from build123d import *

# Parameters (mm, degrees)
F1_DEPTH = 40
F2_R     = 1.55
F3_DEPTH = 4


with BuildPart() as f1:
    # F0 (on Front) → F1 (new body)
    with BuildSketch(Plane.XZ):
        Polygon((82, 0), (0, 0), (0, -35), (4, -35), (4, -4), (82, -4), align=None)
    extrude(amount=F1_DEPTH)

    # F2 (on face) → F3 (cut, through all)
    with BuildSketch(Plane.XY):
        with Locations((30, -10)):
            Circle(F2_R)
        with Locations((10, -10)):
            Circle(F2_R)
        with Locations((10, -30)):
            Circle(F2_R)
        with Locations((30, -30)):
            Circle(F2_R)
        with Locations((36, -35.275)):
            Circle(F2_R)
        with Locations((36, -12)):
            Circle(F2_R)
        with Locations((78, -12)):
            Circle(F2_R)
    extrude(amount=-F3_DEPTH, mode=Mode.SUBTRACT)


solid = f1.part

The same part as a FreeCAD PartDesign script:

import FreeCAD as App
import Part
import Sketcher
from FreeCAD import Vector


def add_polygon(sketch, points):
    """Adds a closed chain of lines whose ends are joined by coincident constraints."""
    first, n = sketch.GeometryCount, len(points)
    for a, b in zip(points, points[1:] + points[:1]):
        sketch.addGeometry(Part.LineSegment(App.Vector(*a, 0), App.Vector(*b, 0)), False)
    for i in range(n):
        sketch.addConstraint(Sketcher.Constraint("Coincident", first + i, 2, first + (i + 1) % n, 1))

doc = App.newDocument("Part")
body = doc.addObject("PartDesign::Body", "Body")

# Sketch on XZ plane
sketch1 = body.newObject("Sketcher::SketchObject", "Sketch")
sketch1.AttachmentSupport = (doc.getObject("XZ_Plane"), [""])
sketch1.MapMode = "FlatFace"
add_polygon(sketch1, [(82, 0), (0, 0), (0, -35), (4, -35), (4, -4), (82, -4)])  # lines 0-5
sketch1.addConstraint(Sketcher.Constraint("Horizontal", 0))
sketch1.addConstraint(Sketcher.Constraint("Vertical", 1))
sketch1.addConstraint(Sketcher.Constraint("Horizontal", 2))
sketch1.addConstraint(Sketcher.Constraint("Vertical", 3))
sketch1.addConstraint(Sketcher.Constraint("Horizontal", 4))
sketch1.addConstraint(Sketcher.Constraint("Vertical", 5))
sketch1.addConstraint(Sketcher.Constraint("Coincident", 0, 2, -1, 1))
sketch1.addConstraint(Sketcher.Constraint("Equal", 2, 5))
sketch1.addConstraint(Sketcher.Constraint("DistanceX", 0, 2, 0, 1, 82.0))
sketch1.addConstraint(Sketcher.Constraint("DistanceX", 2, 1, 2, 2, 4.0))
sketch1.addConstraint(Sketcher.Constraint("DistanceY", 1, 2, 1, 1, 35.0))
pad1 = body.newObject("PartDesign::Pad", "Pad")
pad1.Profile = sketch1
pad1.Length = 40

# Sketch on XY plane
sketch2 = body.newObject("Sketcher::SketchObject", "Sketch001")
sketch2.AttachmentSupport = (doc.getObject("XY_Plane"), [""])
sketch2.MapMode = "FlatFace"
sketch2.addGeometry(Part.Circle(Vector(30, -10, 0), Vector(0, 0, 1), 1.6), False)
sketch2.addGeometry(Part.Circle(Vector(10, -10, 0), Vector(0, 0, 1), 1.6), False)
sketch2.addGeometry(Part.Circle(Vector(10, -30, 0), Vector(0, 0, 1), 1.6), False)
sketch2.addGeometry(Part.Circle(Vector(30, -30, 0), Vector(0, 0, 1), 1.6), False)
sketch2.addGeometry(Part.Circle(Vector(36, -35.3, 0), Vector(0, 0, 1), 1.6), False)
sketch2.addGeometry(Part.Circle(Vector(36, -12, 0), Vector(0, 0, 1), 1.6), False)
sketch2.addGeometry(Part.Circle(Vector(78, -12, 0), Vector(0, 0, 1), 1.6), False)
sketch2.addConstraint(Sketcher.Constraint("Equal", 0, 1))
sketch2.addConstraint(Sketcher.Constraint("Equal", 1, 2))
sketch2.addConstraint(Sketcher.Constraint("Equal", 2, 3))
sketch2.addConstraint(Sketcher.Constraint("Equal", 3, 4))
sketch2.addConstraint(Sketcher.Constraint("Equal", 4, 5))
sketch2.addConstraint(Sketcher.Constraint("Equal", 5, 6))
sketch2.addConstraint(Sketcher.Constraint("Horizontal", 0, 3, 1, 3))
sketch2.addConstraint(Sketcher.Constraint("Horizontal", 2, 3, 3, 3))
sketch2.addConstraint(Sketcher.Constraint("Horizontal", 5, 3, 6, 3))
sketch2.addConstraint(Sketcher.Constraint("Vertical", 1, 3, 2, 3))
sketch2.addConstraint(Sketcher.Constraint("Vertical", 0, 3, 3, 3))
sketch2.addConstraint(Sketcher.Constraint("Vertical", 4, 3, 5, 3))
sketch2.addConstraint(Sketcher.Constraint("Diameter", 0, 3.1))
sketch2.addConstraint(Sketcher.Constraint("DistanceX", -1, 1, 0, 3, 30.0))
sketch2.addConstraint(Sketcher.Constraint("DistanceY", 0, 3, -1, 1, 10.0))
sketch2.addConstraint(Sketcher.Constraint("DistanceX", -1, 1, 1, 3, 10.0))
sketch2.addConstraint(Sketcher.Constraint("DistanceY", 2, 3, -1, 1, 30.0))
sketch2.addConstraint(Sketcher.Constraint("DistanceX", -1, 1, 4, 3, 36.0))
sketch2.addConstraint(Sketcher.Constraint("DistanceY", 5, 3, -1, 1, 12.0))
sketch2.addConstraint(Sketcher.Constraint("DistanceX", -1, 1, 6, 3, 78.0))
sketch2.addConstraint(Sketcher.Constraint("DistanceY", 4, 3, -1, 1, 35.275))
pocket1 = body.newObject("PartDesign::Pocket", "Pocket")
pocket1.Profile = sketch2
pocket1.Type = "ThroughAll"

doc.recompute()
